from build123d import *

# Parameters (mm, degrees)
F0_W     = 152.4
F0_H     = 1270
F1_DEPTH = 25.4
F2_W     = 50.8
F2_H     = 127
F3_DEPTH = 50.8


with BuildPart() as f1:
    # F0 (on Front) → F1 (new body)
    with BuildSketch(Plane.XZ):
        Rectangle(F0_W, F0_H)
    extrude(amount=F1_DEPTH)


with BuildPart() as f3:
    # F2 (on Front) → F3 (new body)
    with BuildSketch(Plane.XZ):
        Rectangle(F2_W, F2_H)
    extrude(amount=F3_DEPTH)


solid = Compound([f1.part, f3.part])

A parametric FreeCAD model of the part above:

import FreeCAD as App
import Part
import Sketcher

V = App.Vector
Q = App.Units.Quantity


def add_polygon(sketch, points):
    """Adds a closed chain of lines whose ends are joined by coincident constraints."""
    first, n = sketch.GeometryCount, len(points)
    for a, b in zip(points, points[1:] + points[:1]):
        sketch.addGeometry(Part.LineSegment(App.Vector(*a, 0), App.Vector(*b, 0)), False)
    for i in range(n):
        sketch.addConstraint(Sketcher.Constraint("Coincident", first + i, 2, first + (i + 1) % n, 1))

doc = App.newDocument("Part")
params = doc.addObject("Spreadsheet::Sheet", "Params")
for row, (alias, value) in enumerate([
    ("sketch1_width", "6 in"),
    ("sketch1_height", "50 in"),
    ("pad1_length", "1 in"),
    ("sketch2_width", "2 in"),
    ("sketch2_height", "5 in"),
    ("pad2_length", "2 in"),
], start=1):
    params.set(f"A{row}", alias)
    params.set(f"B{row}", "=" + value)
    params.setAlias(f"B{row}", alias)

body = doc.addObject("PartDesign::Body", "Body")

# Sketch on XZ plane
sketch1 = body.newObject("Sketcher::SketchObject", "Sketch")
sketch1.AttachmentSupport = (doc.getObject("XZ_Plane"), [""])
sketch1.MapMode = "FlatFace"
add_polygon(sketch1, [(-76, 635), (-76, -635), (76, -635), (76, 635)])  # lines 0-3
sketch1.addConstraint([
    Sketcher.Constraint("Vertical", 0),
    Sketcher.Constraint("Horizontal", 1),
    Sketcher.Constraint("Vertical", 2),
    Sketcher.Constraint("Horizontal", 3),
    Sketcher.Constraint("Symmetric", 0, 2, 2, 2, -1, 1),
    Sketcher.Constraint("DistanceX", 1, 1, 1, 2, Q("6 in")),
    Sketcher.Constraint("DistanceY", 0, 2, 0, 1, Q("50 in")),
])
sketch1.setExpression("Constraints[9]", "Params.sketch1_width")
sketch1.setExpression("Constraints[10]", "Params.sketch1_height")
pad1 = body.newObject("PartDesign::Pad", "Pad")
pad1.Profile = sketch1
pad1.setExpression("Length", "Params.pad1_length")
body2 = doc.addObject("PartDesign::Body", "Body001")

# Sketch on XZ plane
sketch2 = body2.newObject("Sketcher::SketchObject", "Sketch001")
sketch2.AttachmentSupport = (doc.getObject("XZ_Plane001"), [""])
sketch2.MapMode = "FlatFace"
add_polygon(sketch2, [(-25, 64), (-25, -64), (25, -64), (25, 64)])  # lines 0-3
sketch2.addConstraint([
    Sketcher.Constraint("Vertical", 0),
    Sketcher.Constraint("Horizontal", 1),
    Sketcher.Constraint("Vertical", 2),
    Sketcher.Constraint("Horizontal", 3),
    Sketcher.Constraint("Symmetric", 0, 2, 2, 2, -1, 1),
    Sketcher.Constraint("DistanceX", 1, 1, 1, 2, Q("2 in")),
    Sketcher.Constraint("DistanceY", 0, 2, 0, 1, Q("5 in")),
])
sketch2.setExpression("Constraints[9]", "Params.sketch2_width")
sketch2.setExpression("Constraints[10]", "Params.sketch2_height")
pad2 = body2.newObject("PartDesign::Pad", "Pad001")
pad2.Profile = sketch2
pad2.setExpression("Length", "Params.pad2_length")

doc.recompute()
